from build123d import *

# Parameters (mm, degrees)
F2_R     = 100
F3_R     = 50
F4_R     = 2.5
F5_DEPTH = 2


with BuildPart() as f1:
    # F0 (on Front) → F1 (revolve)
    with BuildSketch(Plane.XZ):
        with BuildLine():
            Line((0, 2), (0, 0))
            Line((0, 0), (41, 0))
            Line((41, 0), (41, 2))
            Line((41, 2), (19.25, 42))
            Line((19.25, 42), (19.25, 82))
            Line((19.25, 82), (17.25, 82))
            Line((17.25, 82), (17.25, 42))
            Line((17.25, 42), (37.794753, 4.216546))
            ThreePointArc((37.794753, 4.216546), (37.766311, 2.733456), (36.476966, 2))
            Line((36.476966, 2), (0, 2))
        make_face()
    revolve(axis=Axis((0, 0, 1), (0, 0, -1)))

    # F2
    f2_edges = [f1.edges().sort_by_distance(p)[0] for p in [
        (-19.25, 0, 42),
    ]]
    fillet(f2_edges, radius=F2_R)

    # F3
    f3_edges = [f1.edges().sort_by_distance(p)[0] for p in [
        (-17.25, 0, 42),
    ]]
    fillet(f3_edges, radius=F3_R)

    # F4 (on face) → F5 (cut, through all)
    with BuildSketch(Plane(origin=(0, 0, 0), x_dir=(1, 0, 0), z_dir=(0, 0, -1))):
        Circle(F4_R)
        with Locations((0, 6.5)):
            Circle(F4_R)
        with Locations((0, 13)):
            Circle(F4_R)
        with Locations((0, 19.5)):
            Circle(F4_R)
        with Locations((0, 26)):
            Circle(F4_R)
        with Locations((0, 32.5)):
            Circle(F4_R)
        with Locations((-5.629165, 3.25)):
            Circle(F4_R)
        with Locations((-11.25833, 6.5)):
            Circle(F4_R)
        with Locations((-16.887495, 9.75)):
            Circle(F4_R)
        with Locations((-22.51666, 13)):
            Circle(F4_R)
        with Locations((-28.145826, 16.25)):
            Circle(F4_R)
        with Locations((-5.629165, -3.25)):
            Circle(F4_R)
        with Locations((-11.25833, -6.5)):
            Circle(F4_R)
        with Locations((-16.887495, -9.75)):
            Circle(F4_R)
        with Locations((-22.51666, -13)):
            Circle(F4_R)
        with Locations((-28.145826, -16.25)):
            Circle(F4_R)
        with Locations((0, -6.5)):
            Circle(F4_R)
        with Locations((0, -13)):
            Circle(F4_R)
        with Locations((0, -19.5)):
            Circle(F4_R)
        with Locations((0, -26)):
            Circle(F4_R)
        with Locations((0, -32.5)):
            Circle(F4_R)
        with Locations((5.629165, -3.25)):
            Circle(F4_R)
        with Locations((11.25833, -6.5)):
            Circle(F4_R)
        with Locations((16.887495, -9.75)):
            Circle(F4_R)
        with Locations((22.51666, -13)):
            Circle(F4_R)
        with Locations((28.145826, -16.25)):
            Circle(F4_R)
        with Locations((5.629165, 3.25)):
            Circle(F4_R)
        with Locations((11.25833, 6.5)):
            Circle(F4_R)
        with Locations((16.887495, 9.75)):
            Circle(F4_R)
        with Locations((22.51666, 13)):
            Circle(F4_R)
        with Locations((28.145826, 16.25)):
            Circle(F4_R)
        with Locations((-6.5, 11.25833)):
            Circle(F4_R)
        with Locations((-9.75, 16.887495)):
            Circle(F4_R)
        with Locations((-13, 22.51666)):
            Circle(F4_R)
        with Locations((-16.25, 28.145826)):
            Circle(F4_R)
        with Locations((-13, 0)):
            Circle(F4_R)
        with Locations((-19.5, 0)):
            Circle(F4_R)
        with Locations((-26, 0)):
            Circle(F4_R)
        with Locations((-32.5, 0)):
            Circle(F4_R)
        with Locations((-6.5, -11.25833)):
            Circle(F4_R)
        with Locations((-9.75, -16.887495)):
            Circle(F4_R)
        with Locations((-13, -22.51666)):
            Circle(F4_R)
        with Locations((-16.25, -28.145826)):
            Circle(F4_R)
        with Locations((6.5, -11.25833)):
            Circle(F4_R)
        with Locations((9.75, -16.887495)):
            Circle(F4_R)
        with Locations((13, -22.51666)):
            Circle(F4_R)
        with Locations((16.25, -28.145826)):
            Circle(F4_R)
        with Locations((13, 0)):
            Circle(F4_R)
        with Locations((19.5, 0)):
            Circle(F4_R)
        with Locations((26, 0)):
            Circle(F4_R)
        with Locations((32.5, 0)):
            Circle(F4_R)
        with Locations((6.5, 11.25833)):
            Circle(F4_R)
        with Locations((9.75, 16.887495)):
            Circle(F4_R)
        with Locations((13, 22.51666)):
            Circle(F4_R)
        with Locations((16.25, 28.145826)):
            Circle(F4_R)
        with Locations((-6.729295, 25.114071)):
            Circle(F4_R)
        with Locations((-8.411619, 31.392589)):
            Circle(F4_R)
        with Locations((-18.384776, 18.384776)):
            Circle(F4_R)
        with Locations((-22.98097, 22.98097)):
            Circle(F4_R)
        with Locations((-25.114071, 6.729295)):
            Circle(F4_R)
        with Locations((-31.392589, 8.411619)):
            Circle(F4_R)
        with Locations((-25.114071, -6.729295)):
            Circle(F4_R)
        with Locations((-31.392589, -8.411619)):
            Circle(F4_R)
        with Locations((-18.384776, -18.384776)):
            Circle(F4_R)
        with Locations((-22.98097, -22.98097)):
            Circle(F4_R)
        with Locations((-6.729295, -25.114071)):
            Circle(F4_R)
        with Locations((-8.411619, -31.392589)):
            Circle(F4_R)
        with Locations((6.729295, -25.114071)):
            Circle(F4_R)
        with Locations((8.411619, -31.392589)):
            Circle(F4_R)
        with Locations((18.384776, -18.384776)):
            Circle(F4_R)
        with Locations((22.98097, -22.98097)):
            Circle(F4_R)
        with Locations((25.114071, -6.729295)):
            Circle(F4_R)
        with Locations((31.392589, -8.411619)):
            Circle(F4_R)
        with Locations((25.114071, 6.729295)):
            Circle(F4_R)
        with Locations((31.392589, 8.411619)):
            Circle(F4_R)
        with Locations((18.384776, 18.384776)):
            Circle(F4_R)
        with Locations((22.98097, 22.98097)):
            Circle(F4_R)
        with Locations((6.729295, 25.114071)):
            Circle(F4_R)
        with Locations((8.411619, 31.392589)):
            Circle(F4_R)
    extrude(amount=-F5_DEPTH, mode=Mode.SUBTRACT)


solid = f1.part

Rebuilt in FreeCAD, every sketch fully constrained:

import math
import FreeCAD as App
import Part
import Sketcher

V = App.Vector
Q = App.Units.Quantity


def edges_at(feature, points):
    """Names of the edges that pass closest to the given points."""
    edges = feature.Shape.Edges
    near = lambda p: min(range(len(edges)), key=lambda i: edges[i].distToShape(Part.Vertex(*p))[0])
    return sorted({f"Edge{near(p) + 1}" for p in points})

doc = App.newDocument("Part")
params = doc.addObject("Spreadsheet::Sheet", "Params")
for row, (alias, value) in enumerate([
    ("sketch1_radius", "1.5 mm"),
    ("sketch1_width", "41 mm"),
    ("sketch1_width2", "2 mm"),
    ("sketch1_height", "40 mm"),
    ("revolution_angle", "360 deg"),
    ("fillet_radius", "100 mm"),
    ("fillet2_radius", "50 mm"),
    ("sketch2_diameter", "5 mm"),
    ("pocket1_length", "2 mm"),
], start=1):
    params.set(f"A{row}", alias)
    params.set(f"B{row}", "=" + value)
    params.setAlias(f"B{row}", alias)

body = doc.addObject("PartDesign::Body", "Body")

sketch1 = doc.addObject("Sketcher::SketchObject", "Sketch")
body.addObject(sketch1)
sketch1.AttachmentSupport = (doc.XZ_Plane, [""])
sketch1.MapMode = "FlatFace"
sketch1.addGeometry([
    Part.LineSegment(V(0, 2, 0), V(0, 0, 0)),
    Part.LineSegment(V(0, 0, 0), V(41, 0, 0)),
    Part.LineSegment(V(41, 0, 0), V(41, 2, 0)),
    Part.LineSegment(V(41, 2, 0), V(19.2, 42, 0)),
    Part.LineSegment(V(19.2, 42, 0), V(19.2, 82, 0)),
    Part.LineSegment(V(19.2, 82, 0), V(17.2, 82, 0)),
    Part.LineSegment(V(17.2, 82, 0), V(17.2, 42, 0)),
    Part.LineSegment(V(17.2, 42, 0), V(37.8, 4.2, 0)),
    Part.ArcOfCircle(Part.Circle(V(36.5, 3.5, 0), V(0, 0, 1), 1.5), math.radians(-90), math.radians(29)),
    Part.LineSegment(V(36.5, 2, 0), V(0, 2, 0)),
], False)
sketch1.addConstraint([
    Sketcher.Constraint("Coincident", 0, 2, 1, 1),
    Sketcher.Constraint("Coincident", 1, 2, 2, 1),
    Sketcher.Constraint("Coincident", 2, 2, 3, 1),
    Sketcher.Constraint("Coincident", 3, 2, 4, 1),
    Sketcher.Constraint("Coincident", 4, 2, 5, 1),
    Sketcher.Constraint("Coincident", 5, 2, 6, 1),
    Sketcher.Constraint("Coincident", 6, 2, 7, 1),
    Sketcher.Constraint("Tangent", 7, 2, 8, 2),
    Sketcher.Constraint("Tangent", 8, 1, 9, 1),
    Sketcher.Constraint("Coincident", 9, 2, 0, 1),
    Sketcher.Constraint("Vertical", 0),
    Sketcher.Constraint("Horizontal", 1),
    Sketcher.Constraint("Vertical", 2),
    Sketcher.Constraint("Vertical", 4),
    Sketcher.Constraint("Horizontal", 5),
    Sketcher.Constraint("Vertical", 6),
    Sketcher.Constraint("Horizontal", 9),
    Sketcher.Constraint("Coincident", 0, 2, -1, 1),
    Sketcher.Constraint("Parallel", 3, 7),
    Sketcher.Constraint("Horizontal", 3, 2, 6, 2),
    Sketcher.Constraint("Horizontal", 2, 2, 8, 1),
    Sketcher.Constraint("Equal", 5, 0),
    Sketcher.Constraint("Radius", 8, Q("1.5 mm")),
    Sketcher.Constraint("DistanceX", 1, 1, 1, 2, Q("41 mm")),
    Sketcher.Constraint("DistanceX", 5, 2, 5, 1, Q("2 mm")),
    Sketcher.Constraint("DistanceY", 4, 1, 4, 2, Q("40 mm")),
    Sketcher.Constraint("DistanceY", -1, 1, 3, 2, Q("42 mm")),
    Sketcher.Constraint("DistanceX", -1, 1, 3, 2, Q("19.25 mm")),
])
sketch1.setExpression("Constraints[22]", "Params.sketch1_radius")
sketch1.setExpression("Constraints[23]", "Params.sketch1_width")
sketch1.setExpression("Constraints[24]", "Params.sketch1_width2")
sketch1.setExpression("Constraints[25]", "Params.sketch1_height")
revolution = doc.addObject("PartDesign::Revolution", "Revolution")
body.addObject(revolution)
revolution.Profile = sketch1
revolution.ReferenceAxis = (sketch1, ["V_Axis"])
revolution.setExpression("Angle", "Params.revolution_angle")
doc.recompute()

fillet = doc.addObject("PartDesign::Fillet", "Fillet")
body.addObject(fillet)
fillet.Base = (revolution, edges_at(revolution, [(-19.25, 0, 42)]))
fillet.setExpression("Radius", "Params.fillet_radius")
doc.recompute()

fillet2 = doc.addObject("PartDesign::Fillet", "Fillet001")
body.addObject(fillet2)
fillet2.Base = (fillet, edges_at(fillet, [(-17.25, 0, 42)]))
fillet2.setExpression("Radius", "Params.fillet2_radius")

sketch2 = doc.addObject("Sketcher::SketchObject", "Sketch001")
body.addObject(sketch2)
sketch2.AttachmentSupport = (doc.XY_Plane, [""])
sketch2.MapMode = "FlatFace"
sketch2.addGeometry([
    Part.Circle(V(0, 0, 0), V(0, 0, 1), 2.5),
    Part.Circle(V(0, -6.5, 0), V(0, 0, 1), 2.5),
    Part.Circle(V(0, -13, 0), V(0, 0, 1), 2.5),
    Part.Circle(V(0, -19.5, 0), V(0, 0, 1), 2.5),
    Part.Circle(V(0, -26, 0), V(0, 0, 1), 2.5),
    Part.Circle(V(0, -32.5, 0), V(0, 0, 1), 2.5),
    Part.Circle(V(-5.6, -3.2, 0), V(0, 0, 1), 2.5),
    Part.Circle(V(-11.3, -6.5, 0), V(0, 0, 1), 2.5),
    Part.Circle(V(-16.9, -9.8, 0), V(0, 0, 1), 2.5),
    Part.Circle(V(-22.5, -13, 0), V(0, 0, 1), 2.5),
    Part.Circle(V(-28.1, -16.2, 0), V(0, 0, 1), 2.5),
    Part.Circle(V(-5.6, 3.2, 0), V(0, 0, 1), 2.5),
    Part.Circle(V(-11.3, 6.5, 0), V(0, 0, 1), 2.5),
    Part.Circle(V(-16.9, 9.8, 0), V(0, 0, 1), 2.5),
    Part.Circle(V(-22.5, 13, 0), V(0, 0, 1), 2.5),
    Part.Circle(V(-28.1, 16.2, 0), V(0, 0, 1), 2.5),
    Part.Circle(V(0, 6.5, 0), V(0, 0, 1), 2.5),
    Part.Circle(V(0, 13, 0), V(0, 0, 1), 2.5),
    Part.Circle(V(0, 19.5, 0), V(0, 0, 1), 2.5),
    Part.Circle(V(0, 26, 0), V(0, 0, 1), 2.5),
    Part.Circle(V(0, 32.5, 0), V(0, 0, 1), 2.5),
    Part.Circle(V(5.6, 3.2, 0), V(0, 0, 1), 2.5),
    Part.Circle(V(11.3, 6.5, 0), V(0, 0, 1), 2.5),
    Part.Circle(V(16.9, 9.8, 0), V(0, 0, 1), 2.5),
    Part.Circle(V(22.5, 13, 0), V(0, 0, 1), 2.5),
    Part.Circle(V(28.1, 16.2, 0), V(0, 0, 1), 2.5),
    Part.Circle(V(5.6, -3.2, 0), V(0, 0, 1), 2.5),
    Part.Circle(V(11.3, -6.5, 0), V(0, 0, 1), 2.5),
    Part.Circle(V(16.9, -9.8, 0), V(0, 0, 1), 2.5),
    Part.Circle(V(22.5, -13, 0), V(0, 0, 1), 2.5),
    Part.Circle(V(28.1, -16.2, 0), V(0, 0, 1), 2.5),
    Part.Circle(V(-6.5, -11.3, 0), V(0, 0, 1), 2.5),
    Part.Circle(V(-9.8, -16.9, 0), V(0, 0, 1), 2.5),
    Part.Circle(V(-13, -22.5, 0), V(0, 0, 1), 2.5),
    Part.Circle(V(-16.2, -28.1, 0), V(0, 0, 1), 2.5),
    Part.Circle(V(-13, 0, 0), V(0, 0, 1), 2.5),
    Part.Circle(V(-19.5, 0, 0), V(0, 0, 1), 2.5),
    Part.Circle(V(-26, 0, 0), V(0, 0, 1), 2.5),
    Part.Circle(V(-32.5, 0, 0), V(0, 0, 1), 2.5),
    Part.Circle(V(-6.5, 11.3, 0), V(0, 0, 1), 2.5),
    Part.Circle(V(-9.8, 16.9, 0), V(0, 0, 1), 2.5),
    Part.Circle(V(-13, 22.5, 0), V(0, 0, 1), 2.5),
    Part.Circle(V(-16.2, 28.1, 0), V(0, 0, 1), 2.5),
    Part.Circle(V(6.5, 11.3, 0), V(0, 0, 1), 2.5),
    Part.Circle(V(9.8, 16.9, 0), V(0, 0, 1), 2.5),
    Part.Circle(V(13, 22.5, 0), V(0, 0, 1), 2.5),
    Part.Circle(V(16.2, 28.1, 0), V(0, 0, 1), 2.5),
    Part.Circle(V(13, 0, 0), V(0, 0, 1), 2.5),
    Part.Circle(V(19.5, 0, 0), V(0, 0, 1), 2.5),
    Part.Circle(V(26, 0, 0), V(0, 0, 1), 2.5),
    Part.Circle(V(32.5, 0, 0), V(0, 0, 1), 2.5),
    Part.Circle(V(6.5, -11.3, 0), V(0, 0, 1), 2.5),
    Part.Circle(V(9.8, -16.9, 0), V(0, 0, 1), 2.5),
    Part.Circle(V(13, -22.5, 0), V(0, 0, 1), 2.5),
    Part.Circle(V(16.2, -28.1, 0), V(0, 0, 1), 2.5),
    Part.Circle(V(-6.7, -25.1, 0), V(0, 0, 1), 2.5),
    Part.Circle(V(-8.4, -31.4, 0), V(0, 0, 1), 2.5),
    Part.Circle(V(-18.4, -18.4, 0), V(0, 0, 1), 2.5),
    Part.Circle(V(-23, -23, 0), V(0, 0, 1), 2.5),
    Part.Circle(V(-25.1, -6.7, 0), V(0, 0, 1), 2.5),
    Part.Circle(V(-31.4, -8.4, 0), V(0, 0, 1), 2.5),
    Part.Circle(V(-25.1, 6.7, 0), V(0, 0, 1), 2.5),
    Part.Circle(V(-31.4, 8.4, 0), V(0, 0, 1), 2.5),
    Part.Circle(V(-18.4, 18.4, 0), V(0, 0, 1), 2.5),
    Part.Circle(V(-23, 23, 0), V(0, 0, 1), 2.5),
    Part.Circle(V(-6.7, 25.1, 0), V(0, 0, 1), 2.5),
    Part.Circle(V(-8.4, 31.4, 0), V(0, 0, 1), 2.5),
    Part.Circle(V(6.7, 25.1, 0), V(0, 0, 1), 2.5),
    Part.Circle(V(8.4, 31.4, 0), V(0, 0, 1), 2.5),
    Part.Circle(V(18.4, 18.4, 0), V(0, 0, 1), 2.5),
    Part.Circle(V(23, 23, 0), V(0, 0, 1), 2.5),
    Part.Circle(V(25.1, 6.7, 0), V(0, 0, 1), 2.5),
    Part.Circle(V(31.4, 8.4, 0), V(0, 0, 1), 2.5),
    Part.Circle(V(25.1, -6.7, 0), V(0, 0, 1), 2.5),
    Part.Circle(V(31.4, -8.4, 0), V(0, 0, 1), 2.5),
    Part.Circle(V(18.4, -18.4, 0), V(0, 0, 1), 2.5),
    Part.Circle(V(23, -23, 0), V(0, 0, 1), 2.5),
    Part.Circle(V(6.7, -25.1, 0), V(0, 0, 1), 2.5),
    Part.Circle(V(8.4, -31.4, 0), V(0, 0, 1), 2.5),
], False)
sketch2.addConstraint([
    Sketcher.Constraint("Coincident", 0, 3, -1, 1),
    Sketcher.Constraint("Equal", 0, 1),
    Sketcher.Constraint("Equal", 1, 2),
    Sketcher.Constraint("Equal", 2, 3),
    Sketcher.Constraint("Equal", 3, 4),
    Sketcher.Constraint("Equal", 4, 5),
    Sketcher.Constraint("Equal", 5, 6),
    Sketcher.Constraint("Equal", 6, 7),
    Sketcher.Constraint("Equal", 7, 8),
    Sketcher.Constraint("Equal", 8, 9),
    Sketcher.Constraint("Equal", 9, 10),
    Sketcher.Constraint("Equal", 10, 11),
    Sketcher.Constraint("Equal", 11, 12),
    Sketcher.Constraint("Equal", 12, 13),
    Sketcher.Constraint("Equal", 13, 14),
    Sketcher.Constraint("Equal", 14, 15),
    Sketcher.Constraint("Equal", 15, 16),
    Sketcher.Constraint("Equal", 16, 17),
    Sketcher.Constraint("Equal", 17, 18),
    Sketcher.Constraint("Equal", 18, 19),
    Sketcher.Constraint("Equal", 19, 20),
    Sketcher.Constraint("Equal", 20, 21),
    Sketcher.Constraint("Equal", 21, 22),
    Sketcher.Constraint("Equal", 22, 23),
    Sketcher.Constraint("Equal", 23, 24),
    Sketcher.Constraint("Equal", 24, 25),
    Sketcher.Constraint("Equal", 25, 26),
    Sketcher.Constraint("Equal", 26, 27),
    Sketcher.Constraint("Equal", 27, 28),
    Sketcher.Constraint("Equal", 28, 29),
    Sketcher.Constraint("Equal", 29, 30),
    Sketcher.Constraint("Equal", 30, 31),
    Sketcher.Constraint("Equal", 31, 32),
    Sketcher.Constraint("Equal", 32, 33),
    Sketcher.Constraint("Equal", 33, 34),
    Sketcher.Constraint("Equal", 34, 35),
    Sketcher.Constraint("Equal", 35, 36),
    Sketcher.Constraint("Equal", 36, 37),
    Sketcher.Constraint("Equal", 37, 38),
    Sketcher.Constraint("Equal", 38, 39),
    Sketcher.Constraint("Equal", 39, 40),
    Sketcher.Constraint("Equal", 40, 41),
    Sketcher.Constraint("Equal", 41, 42),
    Sketcher.Constraint("Equal", 42, 43),
    Sketcher.Constraint("Equal", 43, 44),
    Sketcher.Constraint("Equal", 44, 45),
    Sketcher.Constraint("Equal", 45, 46),
    Sketcher.Constraint("Equal", 46, 47),
    Sketcher.Constraint("Equal", 47, 48),
    Sketcher.Constraint("Equal", 48, 49),
    Sketcher.Constraint("Equal", 49, 50),
    Sketcher.Constraint("Equal", 50, 51),
    Sketcher.Constraint("Equal", 51, 52),
    Sketcher.Constraint("Equal", 52, 53),
    Sketcher.Constraint("Equal", 53, 54),
    Sketcher.Constraint("Equal", 54, 55),
    Sketcher.Constraint("Equal", 55, 56),
    Sketcher.Constraint("Equal", 56, 57),
    Sketcher.Constraint("Equal", 57, 58),
    Sketcher.Constraint("Equal", 58, 59),
    Sketcher.Constraint("Equal", 59, 60),
    Sketcher.Constraint("Equal", 60, 61),
    Sketcher.Constraint("Equal", 61, 62),
    Sketcher.Constraint("Equal", 62, 63),
    Sketcher.Constraint("Equal", 63, 64),
    Sketcher.Constraint("Equal", 64, 65),
    Sketcher.Constraint("Equal", 65, 66),
    Sketcher.Constraint("Equal", 66, 67),
    Sketcher.Constraint("Equal", 67, 68),
    Sketcher.Constraint("Equal", 68, 69),
    Sketcher.Constraint("Equal", 69, 70),
    Sketcher.Constraint("Equal", 70, 71),
    Sketcher.Constraint("Equal", 71, 72),
    Sketcher.Constraint("Equal", 72, 73),
    Sketcher.Constraint("Equal", 73, 74),
    Sketcher.Constraint("Equal", 74, 75),
    Sketcher.Constraint("Equal", 75, 76),
    Sketcher.Constraint("Equal", 76, 77),
    Sketcher.Constraint("Equal", 77, 78),
    Sketcher.Constraint("Symmetric", 1, 3, 16, 3, -1, 1),
    Sketcher.Constraint("Symmetric", 2, 3, 17, 3, -1, 1),
    Sketcher.Constraint("Symmetric", 3, 3, 18, 3, -1, 1),
    Sketcher.Constraint("Symmetric", 4, 3, 19, 3, -1, 1),
    Sketcher.Constraint("Symmetric", 5, 3, 20, 3, -1, 1),
    Sketcher.Constraint("Symmetric", 6, 3, 21, 3, -1, 1),
    Sketcher.Constraint("Symmetric", 7, 3, 22, 3, -1, 1),
    Sketcher.Constraint("Symmetric", 8, 3, 23, 3, -1, 1),
    Sketcher.Constraint("Symmetric", 9, 3, 24, 3, -1, 1),
    Sketcher.Constraint("Symmetric", 10, 3, 25, 3, -1, 1),
    Sketcher.Constraint("Symmetric", 11, 3, 26, 3, -1, 1),
    Sketcher.Constraint("Symmetric", 12, 3, 27, 3, -1, 1),
    Sketcher.Constraint("Symmetric", 13, 3, 28, 3, -1, 1),
    Sketcher.Constraint("Symmetric", 14, 3, 29, 3, -1, 1),
    Sketcher.Constraint("Symmetric", 15, 3, 30, 3, -1, 1),
    Sketcher.Constraint("Symmetric", 31, 3, 43, 3, -1, 1),
    Sketcher.Constraint("Symmetric", 32, 3, 44, 3, -1, 1),
    Sketcher.Constraint("Symmetric", 33, 3, 45, 3, -1, 1),
    Sketcher.Constraint("Symmetric", 34, 3, 46, 3, -1, 1),
    Sketcher.Constraint("Symmetric", 35, 3, 47, 3, -1, 1),
    Sketcher.Constraint("Symmetric", 36, 3, 48, 3, -1, 1),
    Sketcher.Constraint("Symmetric", 37, 3, 49, 3, -1, 1),
    Sketcher.Constraint("Symmetric", 38, 3, 50, 3, -1, 1),
    Sketcher.Constraint("Symmetric", 39, 3, 51, 3, -1, 1),
    Sketcher.Constraint("Symmetric", 40, 3, 52, 3, -1, 1),
    Sketcher.Constraint("Symmetric", 41, 3, 53, 3, -1, 1),
    Sketcher.Constraint("Symmetric", 42, 3, 54, 3, -1, 1),
    Sketcher.Constraint("Symmetric", 55, 3, 67, 3, -1, 1),
    Sketcher.Constraint("Symmetric", 56, 3, 68, 3, -1, 1),
    Sketcher.Constraint("Symmetric", 57, 3, 69, 3, -1, 1),
    Sketcher.Constraint("Symmetric", 58, 3, 70, 3, -1, 1),
    Sketcher.Constraint("Symmetric", 59, 3, 71, 3, -1, 1),
    Sketcher.Constraint("Symmetric", 60, 3, 72, 3, -1, 1),
    Sketcher.Constraint("Symmetric", 61, 3, 73, 3, -1, 1),
    Sketcher.Constraint("Symmetric", 62, 3, 74, 3, -1, 1),
    Sketcher.Constraint("Symmetric", 63, 3, 75, 3, -1, 1),
    Sketcher.Constraint("Symmetric", 64, 3, 76, 3, -1, 1),
    Sketcher.Constraint("Symmetric", 65, 3, 77, 3, -1, 1),
    Sketcher.Constraint("Symmetric", 66, 3, 78, 3, -1, 1),
    Sketcher.Constraint("Symmetric", 11, 3, 21, 3, -2),
    Sketcher.Constraint("Symmetric", 12, 3, 22, 3, -2),
    Sketcher.Constraint("Symmetric", 13, 3, 23, 3, -2),
    Sketcher.Constraint("Symmetric", 14, 3, 24, 3, -2),
    Sketcher.Constraint("Symmetric", 15, 3, 25, 3, -2),
    Sketcher.Constraint("Symmetric", 39, 3, 43, 3, -2),
    Sketcher.Constraint("Symmetric", 40, 3, 44, 3, -2),
    Sketcher.Constraint("Symmetric", 41, 3, 45, 3, -2),
    Sketcher.Constraint("Symmetric", 42, 3, 46, 3, -2),
    Sketcher.Constraint("Symmetric", 65, 3, 67, 3, -2),
    Sketcher.Constraint("Symmetric", 66, 3, 68, 3, -2),
    Sketcher.Constraint("Symmetric", 63, 3, 69, 3, -2),
    Sketcher.Constraint("Symmetric", 64, 3, 70, 3, -2),
    Sketcher.Constraint("Symmetric", 61, 3, 71, 3, -2),
    Sketcher.Constraint("Symmetric", 62, 3, 72, 3, -2),
    Sketcher.Constraint("PointOnObject", 1, 3, -2),
    Sketcher.Constraint("PointOnObject", 2, 3, -2),
    Sketcher.Constraint("PointOnObject", 3, 3, -2),
    Sketcher.Constraint("PointOnObject", 4, 3, -2),
    Sketcher.Constraint("PointOnObject", 5, 3, -2),
    Sketcher.Constraint("PointOnObject", 35, 3, -1),
    Sketcher.Constraint("PointOnObject", 36, 3, -1),
    Sketcher.Constraint("PointOnObject", 37, 3, -1),
    Sketcher.Constraint("PointOnObject", 38, 3, -1),
    Sketcher.Constraint("Horizontal", 1, 3, 7, 3),
    Sketcher.Constraint("Horizontal", 2, 3, 9, 3),
    Sketcher.Constraint("Vertical", 33, 3, 35, 3),
    Sketcher.Constraint("Diameter", 0, Q("5 mm")),
    Sketcher.Constraint("DistanceY", 2, 3, -1, 1, Q("13 mm")),
    Sketcher.Constraint("DistanceY", 4, 3, -1, 1, Q("26 mm")),
    Sketcher.Constraint("DistanceX", 33, 3, -1, 1, Q("13 mm")),
    Sketcher.Constraint("DistanceX", 37, 3, -1, 1, Q("26 mm")),
    Sketcher.Constraint("DistanceY", 1, 3, -1, 1, Q("6.5 mm")),
    Sketcher.Constraint("DistanceY", 3, 3, -1, 1, Q("19.5 mm")),
    Sketcher.Constraint("DistanceY", 5, 3, -1, 1, Q("32.5 mm")),
    Sketcher.Constraint("DistanceX", 31, 3, -1, 1, Q("6.5 mm")),
    Sketcher.Constraint("DistanceX", 36, 3, -1, 1, Q("19.5 mm")),
    Sketcher.Constraint("DistanceX", 38, 3, -1, 1, Q("32.5 mm")),
    Sketcher.Constraint("DistanceY", 6, 3, -1, 1, Q("3.25 mm")),
    Sketcher.Constraint("DistanceY", 8, 3, -1, 1, Q("9.75 mm")),
    Sketcher.Constraint("DistanceY", 10, 3, -1, 1, Q("16.25 mm")),
    Sketcher.Constraint("DistanceX", 32, 3, -1, 1, Q("9.75 mm")),
    Sketcher.Constraint("DistanceX", 34, 3, -1, 1, Q("16.25 mm")),
    Sketcher.Constraint("DistanceX", 7, 3, -1, 1, Q("11.25833 mm")),
    Sketcher.Constraint("DistanceX", 9, 3, -1, 1, Q("22.51666 mm")),
    Sketcher.Constraint("DistanceY", 31, 3, -1, 1, Q("11.25833 mm")),
    Sketcher.Constraint("DistanceY", 33, 3, -1, 1, Q("22.51666 mm")),
    Sketcher.Constraint("DistanceY", 55, 3, -1, 1, Q("25.114071 mm")),
    Sketcher.Constraint("DistanceX", 56, 3, -1, 1, Q("8.411619 mm")),
    Sketcher.Constraint("DistanceY", 56, 3, -1, 1, Q("31.392589 mm")),
    Sketcher.Constraint("DistanceX", 58, 3, -1, 1, Q("22.98097 mm")),
    Sketcher.Constraint("DistanceY", 58, 3, -1, 1, Q("22.98097 mm")),
    Sketcher.Constraint("DistanceX", 59, 3, -1, 1, Q("25.114071 mm")),
    Sketcher.Constraint("DistanceX", 60, 3, -1, 1, Q("31.392589 mm")),
    Sketcher.Constraint("DistanceY", 60, 3, -1, 1, Q("8.411619 mm")),
    Sketcher.Constraint("DistanceX", 6, 3, -1, 1, Q("5.629165 mm")),
    Sketcher.Constraint("DistanceX", 8, 3, -1, 1, Q("16.887495 mm")),
    Sketcher.Constraint("DistanceX", 10, 3, -1, 1, Q("28.145826 mm")),
    Sketcher.Constraint("DistanceY", 32, 3, -1, 1, Q("16.887495 mm")),
    Sketcher.Constraint("DistanceY", 34, 3, -1, 1, Q("28.145826 mm")),
    Sketcher.Constraint("DistanceX", 55, 3, -1, 1, Q("6.729295 mm")),
    Sketcher.Constraint("DistanceX", 57, 3, -1, 1, Q("18.384776 mm")),
    Sketcher.Constraint("DistanceY", 57, 3, -1, 1, Q("18.384776 mm")),
    Sketcher.Constraint("DistanceY", 59, 3, -1, 1, Q("6.729295 mm")),
])
sketch2.setExpression("Constraints[145]", "Params.sketch2_diameter")
pocket1 = doc.addObject("PartDesign::Pocket", "Pocket")
body.addObject(pocket1)
pocket1.Profile = sketch2
pocket1.setExpression("Length", "Params.pocket1_length")
pocket1.Reversed = True

doc.recompute()
